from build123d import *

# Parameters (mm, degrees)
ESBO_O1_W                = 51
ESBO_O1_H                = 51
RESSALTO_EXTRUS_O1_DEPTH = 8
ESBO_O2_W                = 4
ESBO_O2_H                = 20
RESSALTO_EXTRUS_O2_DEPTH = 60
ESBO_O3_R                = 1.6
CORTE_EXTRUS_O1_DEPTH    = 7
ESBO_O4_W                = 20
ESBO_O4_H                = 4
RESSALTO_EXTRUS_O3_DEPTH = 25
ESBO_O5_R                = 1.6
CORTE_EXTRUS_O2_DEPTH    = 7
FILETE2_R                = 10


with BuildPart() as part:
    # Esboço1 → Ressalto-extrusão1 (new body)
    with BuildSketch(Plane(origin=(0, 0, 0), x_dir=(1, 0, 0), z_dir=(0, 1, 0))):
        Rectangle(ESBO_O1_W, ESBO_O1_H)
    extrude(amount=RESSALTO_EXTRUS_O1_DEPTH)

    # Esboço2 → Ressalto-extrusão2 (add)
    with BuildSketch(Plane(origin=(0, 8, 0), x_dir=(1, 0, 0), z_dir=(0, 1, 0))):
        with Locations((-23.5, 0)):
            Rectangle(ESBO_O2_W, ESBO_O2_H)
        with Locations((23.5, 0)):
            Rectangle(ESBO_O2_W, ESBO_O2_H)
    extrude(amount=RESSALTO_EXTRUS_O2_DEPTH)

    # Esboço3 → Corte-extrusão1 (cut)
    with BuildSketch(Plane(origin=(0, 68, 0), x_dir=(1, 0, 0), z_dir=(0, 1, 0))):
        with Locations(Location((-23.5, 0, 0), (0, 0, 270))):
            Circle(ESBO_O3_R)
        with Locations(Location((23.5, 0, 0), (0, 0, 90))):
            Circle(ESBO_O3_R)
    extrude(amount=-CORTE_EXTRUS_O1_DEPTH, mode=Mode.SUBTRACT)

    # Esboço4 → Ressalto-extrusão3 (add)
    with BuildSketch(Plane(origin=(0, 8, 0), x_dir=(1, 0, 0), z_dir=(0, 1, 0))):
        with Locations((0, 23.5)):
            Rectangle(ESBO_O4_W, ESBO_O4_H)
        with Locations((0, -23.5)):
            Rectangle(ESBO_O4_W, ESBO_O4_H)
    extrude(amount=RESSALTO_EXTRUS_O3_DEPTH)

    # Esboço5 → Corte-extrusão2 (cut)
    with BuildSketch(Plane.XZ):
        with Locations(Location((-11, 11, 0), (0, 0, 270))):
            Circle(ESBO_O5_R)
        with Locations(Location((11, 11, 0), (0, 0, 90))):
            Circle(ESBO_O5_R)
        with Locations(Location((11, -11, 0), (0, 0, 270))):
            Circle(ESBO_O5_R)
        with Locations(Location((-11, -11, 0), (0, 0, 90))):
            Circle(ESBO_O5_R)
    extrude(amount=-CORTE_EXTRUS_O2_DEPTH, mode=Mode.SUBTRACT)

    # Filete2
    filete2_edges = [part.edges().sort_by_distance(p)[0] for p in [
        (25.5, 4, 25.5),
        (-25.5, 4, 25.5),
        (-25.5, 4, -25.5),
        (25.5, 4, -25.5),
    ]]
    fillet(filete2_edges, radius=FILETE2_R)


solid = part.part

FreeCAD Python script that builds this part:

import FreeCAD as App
import Part
import Sketcher
from FreeCAD import Vector


def edges_at(feature, points):
    """Names of the edges that pass closest to the given points."""
    edges = feature.Shape.Edges
    near = lambda p: min(range(len(edges)), key=lambda i: edges[i].distToShape(Part.Vertex(*p))[0])
    return sorted({f"Edge{near(p) + 1}" for p in points})


def add_polygon(sketch, points):
    """Adds a closed chain of lines whose ends are joined by coincident constraints."""
    first, n = sketch.GeometryCount, len(points)
    for a, b in zip(points, points[1:] + points[:1]):
        sketch.addGeometry(Part.LineSegment(App.Vector(*a, 0), App.Vector(*b, 0)), False)
    for i in range(n):
        sketch.addConstraint(Sketcher.Constraint("Coincident", first + i, 2, first + (i + 1) % n, 1))

doc = App.newDocument("Part")
body = doc.addObject("PartDesign::Body", "Body")

# Sketch on XZ plane
sketch1 = body.newObject("Sketcher::SketchObject", "Sketch")
sketch1.AttachmentSupport = (doc.getObject("XZ_Plane"), [""])
sketch1.MapMode = "FlatFace"
add_polygon(sketch1, [(-26, -26), (-26, 26), (26, 26), (26, -26)])  # lines 0-3
sketch1.addConstraint([
    Sketcher.Constraint("Vertical", 0),
    Sketcher.Constraint("Horizontal", 1),
    Sketcher.Constraint("Vertical", 2),
    Sketcher.Constraint("Horizontal", 3),
    Sketcher.Constraint("Symmetric", 0, 2, 2, 2, -1, 1),
    Sketcher.Constraint("Equal", 3, 0),
    Sketcher.Constraint("DistanceX", 1, 1, 1, 2, 51.0),
])
pad1 = body.newObject("PartDesign::Pad", "Pad")
pad1.Profile = sketch1
pad1.Length = 8
pad1.Reversed = True

# Sketch on XZ plane
sketch2 = body.newObject("Sketcher::SketchObject", "Sketch001")
sketch2.AttachmentSupport = (doc.getObject("XZ_Plane"), [""])
sketch2.MapMode = "FlatFace"
sketch2.AttachmentOffset = App.Placement(Vector(0, 0, -8), App.Rotation())
add_polygon(sketch2, [(-25.5, -10), (-25.5, 10), (-21.5, 10), (-21.5, -10)])  # lines 0-3
add_polygon(sketch2, [(21.5, -10), (21.5, 10), (25.5, 10), (25.5, -10)])  # lines 4-7
sketch2.addConstraint([
    Sketcher.Constraint("Vertical", 0),
    Sketcher.Constraint("Horizontal", 1),
    Sketcher.Constraint("Vertical", 2),
    Sketcher.Constraint("Horizontal", 3),
    Sketcher.Constraint("Vertical", 4),
    Sketcher.Constraint("Horizontal", 5),
    Sketcher.Constraint("Vertical", 6),
    Sketcher.Constraint("Horizontal", 7),
    Sketcher.Constraint("Symmetric", 2, 2, 4, 2, -1, 1),
    Sketcher.Constraint("Symmetric", 0, 2, 6, 2, -1, 1),
    Sketcher.Constraint("Horizontal", 1, 2, 4, 2),
    Sketcher.Constraint("DistanceX", 1, 1, 1, 2, 4.0),
    Sketcher.Constraint("DistanceY", 0, 1, 0, 2, 20.0),
    Sketcher.Constraint("DistanceX", 1, 2, 4, 2, 43.0),
])
pad2 = body.newObject("PartDesign::Pad", "Pad001")
pad2.Profile = sketch2
pad2.Length = 60
pad2.Reversed = True

# Sketch on XZ plane
sketch3 = body.newObject("Sketcher::SketchObject", "Sketch002")
sketch3.AttachmentSupport = (doc.getObject("XZ_Plane"), [""])
sketch3.MapMode = "FlatFace"
sketch3.AttachmentOffset = App.Placement(Vector(0, 0, -68), App.Rotation())
sketch3.addGeometry([
    Part.Circle(Vector(-23.5, 0, 0), Vector(0, 0, 1), 1.6),
    Part.Circle(Vector(23.5, 0, 0), Vector(0, 0, 1), 1.6),
], False)
sketch3.addConstraint([
    Sketcher.Constraint("Equal", 0, 1),
    Sketcher.Constraint("Symmetric", 0, 3, 1, 3, -1, 1),
    Sketcher.Constraint("PointOnObject", 0, 3, -1),
    Sketcher.Constraint("Diameter", 0, 3.2),
    Sketcher.Constraint("DistanceX", 0, 3, 1, 3, 47.0),
])
pocket1 = body.newObject("PartDesign::Pocket", "Pocket")
pocket1.Profile = sketch3
pocket1.Length = 7
pocket1.Reversed = True

# Sketch on XZ plane
sketch4 = body.newObject("Sketcher::SketchObject", "Sketch003")
sketch4.AttachmentSupport = (doc.getObject("XZ_Plane"), [""])
sketch4.MapMode = "FlatFace"
sketch4.AttachmentOffset = App.Placement(Vector(0, 0, -8), App.Rotation())
add_polygon(sketch4, [(-10, -25.5), (-10, -21.5), (10, -21.5), (10, -25.5)])  # lines 0-3
add_polygon(sketch4, [(-10, 21.5), (-10, 25.5), (10, 25.5), (10, 21.5)])  # lines 4-7
sketch4.addConstraint([
    Sketcher.Constraint("Vertical", 0),
    Sketcher.Constraint("Horizontal", 1),
    Sketcher.Constraint("Vertical", 2),
    Sketcher.Constraint("Horizontal", 3),
    Sketcher.Constraint("Vertical", 4),
    Sketcher.Constraint("Horizontal", 5),
    Sketcher.Constraint("Vertical", 6),
    Sketcher.Constraint("Horizontal", 7),
    Sketcher.Constraint("Symmetric", 2, 2, 4, 2, -1, 1),
    Sketcher.Constraint("Symmetric", 0, 2, 6, 2, -1, 1),
    Sketcher.Constraint("Vertical", 3, 2, 4, 2),
    Sketcher.Constraint("DistanceX", 1, 1, 1, 2, 20.0),
    Sketcher.Constraint("DistanceY", 0, 1, 0, 2, 4.0),
    Sketcher.Constraint("DistanceY", 0, 2, 4, 2, 47.0),
])
pad3 = body.newObject("PartDesign::Pad", "Pad002")
pad3.Profile = sketch4
pad3.Length = 25
pad3.Reversed = True

# Sketch on XZ plane
sketch5 = body.newObject("Sketcher::SketchObject", "Sketch004")
sketch5.AttachmentSupport = (doc.getObject("XZ_Plane"), [""])
sketch5.MapMode = "FlatFace"
sketch5.addGeometry([
    Part.Circle(Vector(-11, 11, 0), Vector(0, 0, 1), 1.6),
    Part.Circle(Vector(11, 11, 0), Vector(0, 0, 1), 1.6),
    Part.Circle(Vector(11, -11, 0), Vector(0, 0, 1), 1.6),
    Part.Circle(Vector(-11, -11, 0), Vector(0, 0, 1), 1.6),
], False)
sketch5.addConstraint([
    Sketcher.Constraint("Equal", 0, 1),
    Sketcher.Constraint("Equal", 1, 2),
    Sketcher.Constraint("Equal", 2, 3),
    Sketcher.Constraint("Symmetric", 0, 3, 2, 3, -1, 1),
    Sketcher.Constraint("Symmetric", 1, 3, 3, 3, -1, 1),
    Sketcher.Constraint("Symmetric", 0, 3, 1, 3, -2),
    Sketcher.Constraint("Diameter", 0, 3.2),
    Sketcher.Constraint("DistanceX", 0, 3, -1, 1, 11.0),
    Sketcher.Constraint("DistanceY", -1, 1, 0, 3, 11.0),
])
pocket2 = body.newObject("PartDesign::Pocket", "Pocket001")
pocket2.Profile = sketch5
pocket2.Length = 7
doc.recompute()

fillet = body.newObject("PartDesign::Fillet", "Fillet")
fillet.Base = (pocket2, edges_at(pocket2, [
    (25.5, 4, 25.5),
    (-25.5, 4, 25.5),
    (-25.5, 4, -25.5),
    (25.5, 4, -25.5),
]))
fillet.Radius = 10

doc.recompute()
